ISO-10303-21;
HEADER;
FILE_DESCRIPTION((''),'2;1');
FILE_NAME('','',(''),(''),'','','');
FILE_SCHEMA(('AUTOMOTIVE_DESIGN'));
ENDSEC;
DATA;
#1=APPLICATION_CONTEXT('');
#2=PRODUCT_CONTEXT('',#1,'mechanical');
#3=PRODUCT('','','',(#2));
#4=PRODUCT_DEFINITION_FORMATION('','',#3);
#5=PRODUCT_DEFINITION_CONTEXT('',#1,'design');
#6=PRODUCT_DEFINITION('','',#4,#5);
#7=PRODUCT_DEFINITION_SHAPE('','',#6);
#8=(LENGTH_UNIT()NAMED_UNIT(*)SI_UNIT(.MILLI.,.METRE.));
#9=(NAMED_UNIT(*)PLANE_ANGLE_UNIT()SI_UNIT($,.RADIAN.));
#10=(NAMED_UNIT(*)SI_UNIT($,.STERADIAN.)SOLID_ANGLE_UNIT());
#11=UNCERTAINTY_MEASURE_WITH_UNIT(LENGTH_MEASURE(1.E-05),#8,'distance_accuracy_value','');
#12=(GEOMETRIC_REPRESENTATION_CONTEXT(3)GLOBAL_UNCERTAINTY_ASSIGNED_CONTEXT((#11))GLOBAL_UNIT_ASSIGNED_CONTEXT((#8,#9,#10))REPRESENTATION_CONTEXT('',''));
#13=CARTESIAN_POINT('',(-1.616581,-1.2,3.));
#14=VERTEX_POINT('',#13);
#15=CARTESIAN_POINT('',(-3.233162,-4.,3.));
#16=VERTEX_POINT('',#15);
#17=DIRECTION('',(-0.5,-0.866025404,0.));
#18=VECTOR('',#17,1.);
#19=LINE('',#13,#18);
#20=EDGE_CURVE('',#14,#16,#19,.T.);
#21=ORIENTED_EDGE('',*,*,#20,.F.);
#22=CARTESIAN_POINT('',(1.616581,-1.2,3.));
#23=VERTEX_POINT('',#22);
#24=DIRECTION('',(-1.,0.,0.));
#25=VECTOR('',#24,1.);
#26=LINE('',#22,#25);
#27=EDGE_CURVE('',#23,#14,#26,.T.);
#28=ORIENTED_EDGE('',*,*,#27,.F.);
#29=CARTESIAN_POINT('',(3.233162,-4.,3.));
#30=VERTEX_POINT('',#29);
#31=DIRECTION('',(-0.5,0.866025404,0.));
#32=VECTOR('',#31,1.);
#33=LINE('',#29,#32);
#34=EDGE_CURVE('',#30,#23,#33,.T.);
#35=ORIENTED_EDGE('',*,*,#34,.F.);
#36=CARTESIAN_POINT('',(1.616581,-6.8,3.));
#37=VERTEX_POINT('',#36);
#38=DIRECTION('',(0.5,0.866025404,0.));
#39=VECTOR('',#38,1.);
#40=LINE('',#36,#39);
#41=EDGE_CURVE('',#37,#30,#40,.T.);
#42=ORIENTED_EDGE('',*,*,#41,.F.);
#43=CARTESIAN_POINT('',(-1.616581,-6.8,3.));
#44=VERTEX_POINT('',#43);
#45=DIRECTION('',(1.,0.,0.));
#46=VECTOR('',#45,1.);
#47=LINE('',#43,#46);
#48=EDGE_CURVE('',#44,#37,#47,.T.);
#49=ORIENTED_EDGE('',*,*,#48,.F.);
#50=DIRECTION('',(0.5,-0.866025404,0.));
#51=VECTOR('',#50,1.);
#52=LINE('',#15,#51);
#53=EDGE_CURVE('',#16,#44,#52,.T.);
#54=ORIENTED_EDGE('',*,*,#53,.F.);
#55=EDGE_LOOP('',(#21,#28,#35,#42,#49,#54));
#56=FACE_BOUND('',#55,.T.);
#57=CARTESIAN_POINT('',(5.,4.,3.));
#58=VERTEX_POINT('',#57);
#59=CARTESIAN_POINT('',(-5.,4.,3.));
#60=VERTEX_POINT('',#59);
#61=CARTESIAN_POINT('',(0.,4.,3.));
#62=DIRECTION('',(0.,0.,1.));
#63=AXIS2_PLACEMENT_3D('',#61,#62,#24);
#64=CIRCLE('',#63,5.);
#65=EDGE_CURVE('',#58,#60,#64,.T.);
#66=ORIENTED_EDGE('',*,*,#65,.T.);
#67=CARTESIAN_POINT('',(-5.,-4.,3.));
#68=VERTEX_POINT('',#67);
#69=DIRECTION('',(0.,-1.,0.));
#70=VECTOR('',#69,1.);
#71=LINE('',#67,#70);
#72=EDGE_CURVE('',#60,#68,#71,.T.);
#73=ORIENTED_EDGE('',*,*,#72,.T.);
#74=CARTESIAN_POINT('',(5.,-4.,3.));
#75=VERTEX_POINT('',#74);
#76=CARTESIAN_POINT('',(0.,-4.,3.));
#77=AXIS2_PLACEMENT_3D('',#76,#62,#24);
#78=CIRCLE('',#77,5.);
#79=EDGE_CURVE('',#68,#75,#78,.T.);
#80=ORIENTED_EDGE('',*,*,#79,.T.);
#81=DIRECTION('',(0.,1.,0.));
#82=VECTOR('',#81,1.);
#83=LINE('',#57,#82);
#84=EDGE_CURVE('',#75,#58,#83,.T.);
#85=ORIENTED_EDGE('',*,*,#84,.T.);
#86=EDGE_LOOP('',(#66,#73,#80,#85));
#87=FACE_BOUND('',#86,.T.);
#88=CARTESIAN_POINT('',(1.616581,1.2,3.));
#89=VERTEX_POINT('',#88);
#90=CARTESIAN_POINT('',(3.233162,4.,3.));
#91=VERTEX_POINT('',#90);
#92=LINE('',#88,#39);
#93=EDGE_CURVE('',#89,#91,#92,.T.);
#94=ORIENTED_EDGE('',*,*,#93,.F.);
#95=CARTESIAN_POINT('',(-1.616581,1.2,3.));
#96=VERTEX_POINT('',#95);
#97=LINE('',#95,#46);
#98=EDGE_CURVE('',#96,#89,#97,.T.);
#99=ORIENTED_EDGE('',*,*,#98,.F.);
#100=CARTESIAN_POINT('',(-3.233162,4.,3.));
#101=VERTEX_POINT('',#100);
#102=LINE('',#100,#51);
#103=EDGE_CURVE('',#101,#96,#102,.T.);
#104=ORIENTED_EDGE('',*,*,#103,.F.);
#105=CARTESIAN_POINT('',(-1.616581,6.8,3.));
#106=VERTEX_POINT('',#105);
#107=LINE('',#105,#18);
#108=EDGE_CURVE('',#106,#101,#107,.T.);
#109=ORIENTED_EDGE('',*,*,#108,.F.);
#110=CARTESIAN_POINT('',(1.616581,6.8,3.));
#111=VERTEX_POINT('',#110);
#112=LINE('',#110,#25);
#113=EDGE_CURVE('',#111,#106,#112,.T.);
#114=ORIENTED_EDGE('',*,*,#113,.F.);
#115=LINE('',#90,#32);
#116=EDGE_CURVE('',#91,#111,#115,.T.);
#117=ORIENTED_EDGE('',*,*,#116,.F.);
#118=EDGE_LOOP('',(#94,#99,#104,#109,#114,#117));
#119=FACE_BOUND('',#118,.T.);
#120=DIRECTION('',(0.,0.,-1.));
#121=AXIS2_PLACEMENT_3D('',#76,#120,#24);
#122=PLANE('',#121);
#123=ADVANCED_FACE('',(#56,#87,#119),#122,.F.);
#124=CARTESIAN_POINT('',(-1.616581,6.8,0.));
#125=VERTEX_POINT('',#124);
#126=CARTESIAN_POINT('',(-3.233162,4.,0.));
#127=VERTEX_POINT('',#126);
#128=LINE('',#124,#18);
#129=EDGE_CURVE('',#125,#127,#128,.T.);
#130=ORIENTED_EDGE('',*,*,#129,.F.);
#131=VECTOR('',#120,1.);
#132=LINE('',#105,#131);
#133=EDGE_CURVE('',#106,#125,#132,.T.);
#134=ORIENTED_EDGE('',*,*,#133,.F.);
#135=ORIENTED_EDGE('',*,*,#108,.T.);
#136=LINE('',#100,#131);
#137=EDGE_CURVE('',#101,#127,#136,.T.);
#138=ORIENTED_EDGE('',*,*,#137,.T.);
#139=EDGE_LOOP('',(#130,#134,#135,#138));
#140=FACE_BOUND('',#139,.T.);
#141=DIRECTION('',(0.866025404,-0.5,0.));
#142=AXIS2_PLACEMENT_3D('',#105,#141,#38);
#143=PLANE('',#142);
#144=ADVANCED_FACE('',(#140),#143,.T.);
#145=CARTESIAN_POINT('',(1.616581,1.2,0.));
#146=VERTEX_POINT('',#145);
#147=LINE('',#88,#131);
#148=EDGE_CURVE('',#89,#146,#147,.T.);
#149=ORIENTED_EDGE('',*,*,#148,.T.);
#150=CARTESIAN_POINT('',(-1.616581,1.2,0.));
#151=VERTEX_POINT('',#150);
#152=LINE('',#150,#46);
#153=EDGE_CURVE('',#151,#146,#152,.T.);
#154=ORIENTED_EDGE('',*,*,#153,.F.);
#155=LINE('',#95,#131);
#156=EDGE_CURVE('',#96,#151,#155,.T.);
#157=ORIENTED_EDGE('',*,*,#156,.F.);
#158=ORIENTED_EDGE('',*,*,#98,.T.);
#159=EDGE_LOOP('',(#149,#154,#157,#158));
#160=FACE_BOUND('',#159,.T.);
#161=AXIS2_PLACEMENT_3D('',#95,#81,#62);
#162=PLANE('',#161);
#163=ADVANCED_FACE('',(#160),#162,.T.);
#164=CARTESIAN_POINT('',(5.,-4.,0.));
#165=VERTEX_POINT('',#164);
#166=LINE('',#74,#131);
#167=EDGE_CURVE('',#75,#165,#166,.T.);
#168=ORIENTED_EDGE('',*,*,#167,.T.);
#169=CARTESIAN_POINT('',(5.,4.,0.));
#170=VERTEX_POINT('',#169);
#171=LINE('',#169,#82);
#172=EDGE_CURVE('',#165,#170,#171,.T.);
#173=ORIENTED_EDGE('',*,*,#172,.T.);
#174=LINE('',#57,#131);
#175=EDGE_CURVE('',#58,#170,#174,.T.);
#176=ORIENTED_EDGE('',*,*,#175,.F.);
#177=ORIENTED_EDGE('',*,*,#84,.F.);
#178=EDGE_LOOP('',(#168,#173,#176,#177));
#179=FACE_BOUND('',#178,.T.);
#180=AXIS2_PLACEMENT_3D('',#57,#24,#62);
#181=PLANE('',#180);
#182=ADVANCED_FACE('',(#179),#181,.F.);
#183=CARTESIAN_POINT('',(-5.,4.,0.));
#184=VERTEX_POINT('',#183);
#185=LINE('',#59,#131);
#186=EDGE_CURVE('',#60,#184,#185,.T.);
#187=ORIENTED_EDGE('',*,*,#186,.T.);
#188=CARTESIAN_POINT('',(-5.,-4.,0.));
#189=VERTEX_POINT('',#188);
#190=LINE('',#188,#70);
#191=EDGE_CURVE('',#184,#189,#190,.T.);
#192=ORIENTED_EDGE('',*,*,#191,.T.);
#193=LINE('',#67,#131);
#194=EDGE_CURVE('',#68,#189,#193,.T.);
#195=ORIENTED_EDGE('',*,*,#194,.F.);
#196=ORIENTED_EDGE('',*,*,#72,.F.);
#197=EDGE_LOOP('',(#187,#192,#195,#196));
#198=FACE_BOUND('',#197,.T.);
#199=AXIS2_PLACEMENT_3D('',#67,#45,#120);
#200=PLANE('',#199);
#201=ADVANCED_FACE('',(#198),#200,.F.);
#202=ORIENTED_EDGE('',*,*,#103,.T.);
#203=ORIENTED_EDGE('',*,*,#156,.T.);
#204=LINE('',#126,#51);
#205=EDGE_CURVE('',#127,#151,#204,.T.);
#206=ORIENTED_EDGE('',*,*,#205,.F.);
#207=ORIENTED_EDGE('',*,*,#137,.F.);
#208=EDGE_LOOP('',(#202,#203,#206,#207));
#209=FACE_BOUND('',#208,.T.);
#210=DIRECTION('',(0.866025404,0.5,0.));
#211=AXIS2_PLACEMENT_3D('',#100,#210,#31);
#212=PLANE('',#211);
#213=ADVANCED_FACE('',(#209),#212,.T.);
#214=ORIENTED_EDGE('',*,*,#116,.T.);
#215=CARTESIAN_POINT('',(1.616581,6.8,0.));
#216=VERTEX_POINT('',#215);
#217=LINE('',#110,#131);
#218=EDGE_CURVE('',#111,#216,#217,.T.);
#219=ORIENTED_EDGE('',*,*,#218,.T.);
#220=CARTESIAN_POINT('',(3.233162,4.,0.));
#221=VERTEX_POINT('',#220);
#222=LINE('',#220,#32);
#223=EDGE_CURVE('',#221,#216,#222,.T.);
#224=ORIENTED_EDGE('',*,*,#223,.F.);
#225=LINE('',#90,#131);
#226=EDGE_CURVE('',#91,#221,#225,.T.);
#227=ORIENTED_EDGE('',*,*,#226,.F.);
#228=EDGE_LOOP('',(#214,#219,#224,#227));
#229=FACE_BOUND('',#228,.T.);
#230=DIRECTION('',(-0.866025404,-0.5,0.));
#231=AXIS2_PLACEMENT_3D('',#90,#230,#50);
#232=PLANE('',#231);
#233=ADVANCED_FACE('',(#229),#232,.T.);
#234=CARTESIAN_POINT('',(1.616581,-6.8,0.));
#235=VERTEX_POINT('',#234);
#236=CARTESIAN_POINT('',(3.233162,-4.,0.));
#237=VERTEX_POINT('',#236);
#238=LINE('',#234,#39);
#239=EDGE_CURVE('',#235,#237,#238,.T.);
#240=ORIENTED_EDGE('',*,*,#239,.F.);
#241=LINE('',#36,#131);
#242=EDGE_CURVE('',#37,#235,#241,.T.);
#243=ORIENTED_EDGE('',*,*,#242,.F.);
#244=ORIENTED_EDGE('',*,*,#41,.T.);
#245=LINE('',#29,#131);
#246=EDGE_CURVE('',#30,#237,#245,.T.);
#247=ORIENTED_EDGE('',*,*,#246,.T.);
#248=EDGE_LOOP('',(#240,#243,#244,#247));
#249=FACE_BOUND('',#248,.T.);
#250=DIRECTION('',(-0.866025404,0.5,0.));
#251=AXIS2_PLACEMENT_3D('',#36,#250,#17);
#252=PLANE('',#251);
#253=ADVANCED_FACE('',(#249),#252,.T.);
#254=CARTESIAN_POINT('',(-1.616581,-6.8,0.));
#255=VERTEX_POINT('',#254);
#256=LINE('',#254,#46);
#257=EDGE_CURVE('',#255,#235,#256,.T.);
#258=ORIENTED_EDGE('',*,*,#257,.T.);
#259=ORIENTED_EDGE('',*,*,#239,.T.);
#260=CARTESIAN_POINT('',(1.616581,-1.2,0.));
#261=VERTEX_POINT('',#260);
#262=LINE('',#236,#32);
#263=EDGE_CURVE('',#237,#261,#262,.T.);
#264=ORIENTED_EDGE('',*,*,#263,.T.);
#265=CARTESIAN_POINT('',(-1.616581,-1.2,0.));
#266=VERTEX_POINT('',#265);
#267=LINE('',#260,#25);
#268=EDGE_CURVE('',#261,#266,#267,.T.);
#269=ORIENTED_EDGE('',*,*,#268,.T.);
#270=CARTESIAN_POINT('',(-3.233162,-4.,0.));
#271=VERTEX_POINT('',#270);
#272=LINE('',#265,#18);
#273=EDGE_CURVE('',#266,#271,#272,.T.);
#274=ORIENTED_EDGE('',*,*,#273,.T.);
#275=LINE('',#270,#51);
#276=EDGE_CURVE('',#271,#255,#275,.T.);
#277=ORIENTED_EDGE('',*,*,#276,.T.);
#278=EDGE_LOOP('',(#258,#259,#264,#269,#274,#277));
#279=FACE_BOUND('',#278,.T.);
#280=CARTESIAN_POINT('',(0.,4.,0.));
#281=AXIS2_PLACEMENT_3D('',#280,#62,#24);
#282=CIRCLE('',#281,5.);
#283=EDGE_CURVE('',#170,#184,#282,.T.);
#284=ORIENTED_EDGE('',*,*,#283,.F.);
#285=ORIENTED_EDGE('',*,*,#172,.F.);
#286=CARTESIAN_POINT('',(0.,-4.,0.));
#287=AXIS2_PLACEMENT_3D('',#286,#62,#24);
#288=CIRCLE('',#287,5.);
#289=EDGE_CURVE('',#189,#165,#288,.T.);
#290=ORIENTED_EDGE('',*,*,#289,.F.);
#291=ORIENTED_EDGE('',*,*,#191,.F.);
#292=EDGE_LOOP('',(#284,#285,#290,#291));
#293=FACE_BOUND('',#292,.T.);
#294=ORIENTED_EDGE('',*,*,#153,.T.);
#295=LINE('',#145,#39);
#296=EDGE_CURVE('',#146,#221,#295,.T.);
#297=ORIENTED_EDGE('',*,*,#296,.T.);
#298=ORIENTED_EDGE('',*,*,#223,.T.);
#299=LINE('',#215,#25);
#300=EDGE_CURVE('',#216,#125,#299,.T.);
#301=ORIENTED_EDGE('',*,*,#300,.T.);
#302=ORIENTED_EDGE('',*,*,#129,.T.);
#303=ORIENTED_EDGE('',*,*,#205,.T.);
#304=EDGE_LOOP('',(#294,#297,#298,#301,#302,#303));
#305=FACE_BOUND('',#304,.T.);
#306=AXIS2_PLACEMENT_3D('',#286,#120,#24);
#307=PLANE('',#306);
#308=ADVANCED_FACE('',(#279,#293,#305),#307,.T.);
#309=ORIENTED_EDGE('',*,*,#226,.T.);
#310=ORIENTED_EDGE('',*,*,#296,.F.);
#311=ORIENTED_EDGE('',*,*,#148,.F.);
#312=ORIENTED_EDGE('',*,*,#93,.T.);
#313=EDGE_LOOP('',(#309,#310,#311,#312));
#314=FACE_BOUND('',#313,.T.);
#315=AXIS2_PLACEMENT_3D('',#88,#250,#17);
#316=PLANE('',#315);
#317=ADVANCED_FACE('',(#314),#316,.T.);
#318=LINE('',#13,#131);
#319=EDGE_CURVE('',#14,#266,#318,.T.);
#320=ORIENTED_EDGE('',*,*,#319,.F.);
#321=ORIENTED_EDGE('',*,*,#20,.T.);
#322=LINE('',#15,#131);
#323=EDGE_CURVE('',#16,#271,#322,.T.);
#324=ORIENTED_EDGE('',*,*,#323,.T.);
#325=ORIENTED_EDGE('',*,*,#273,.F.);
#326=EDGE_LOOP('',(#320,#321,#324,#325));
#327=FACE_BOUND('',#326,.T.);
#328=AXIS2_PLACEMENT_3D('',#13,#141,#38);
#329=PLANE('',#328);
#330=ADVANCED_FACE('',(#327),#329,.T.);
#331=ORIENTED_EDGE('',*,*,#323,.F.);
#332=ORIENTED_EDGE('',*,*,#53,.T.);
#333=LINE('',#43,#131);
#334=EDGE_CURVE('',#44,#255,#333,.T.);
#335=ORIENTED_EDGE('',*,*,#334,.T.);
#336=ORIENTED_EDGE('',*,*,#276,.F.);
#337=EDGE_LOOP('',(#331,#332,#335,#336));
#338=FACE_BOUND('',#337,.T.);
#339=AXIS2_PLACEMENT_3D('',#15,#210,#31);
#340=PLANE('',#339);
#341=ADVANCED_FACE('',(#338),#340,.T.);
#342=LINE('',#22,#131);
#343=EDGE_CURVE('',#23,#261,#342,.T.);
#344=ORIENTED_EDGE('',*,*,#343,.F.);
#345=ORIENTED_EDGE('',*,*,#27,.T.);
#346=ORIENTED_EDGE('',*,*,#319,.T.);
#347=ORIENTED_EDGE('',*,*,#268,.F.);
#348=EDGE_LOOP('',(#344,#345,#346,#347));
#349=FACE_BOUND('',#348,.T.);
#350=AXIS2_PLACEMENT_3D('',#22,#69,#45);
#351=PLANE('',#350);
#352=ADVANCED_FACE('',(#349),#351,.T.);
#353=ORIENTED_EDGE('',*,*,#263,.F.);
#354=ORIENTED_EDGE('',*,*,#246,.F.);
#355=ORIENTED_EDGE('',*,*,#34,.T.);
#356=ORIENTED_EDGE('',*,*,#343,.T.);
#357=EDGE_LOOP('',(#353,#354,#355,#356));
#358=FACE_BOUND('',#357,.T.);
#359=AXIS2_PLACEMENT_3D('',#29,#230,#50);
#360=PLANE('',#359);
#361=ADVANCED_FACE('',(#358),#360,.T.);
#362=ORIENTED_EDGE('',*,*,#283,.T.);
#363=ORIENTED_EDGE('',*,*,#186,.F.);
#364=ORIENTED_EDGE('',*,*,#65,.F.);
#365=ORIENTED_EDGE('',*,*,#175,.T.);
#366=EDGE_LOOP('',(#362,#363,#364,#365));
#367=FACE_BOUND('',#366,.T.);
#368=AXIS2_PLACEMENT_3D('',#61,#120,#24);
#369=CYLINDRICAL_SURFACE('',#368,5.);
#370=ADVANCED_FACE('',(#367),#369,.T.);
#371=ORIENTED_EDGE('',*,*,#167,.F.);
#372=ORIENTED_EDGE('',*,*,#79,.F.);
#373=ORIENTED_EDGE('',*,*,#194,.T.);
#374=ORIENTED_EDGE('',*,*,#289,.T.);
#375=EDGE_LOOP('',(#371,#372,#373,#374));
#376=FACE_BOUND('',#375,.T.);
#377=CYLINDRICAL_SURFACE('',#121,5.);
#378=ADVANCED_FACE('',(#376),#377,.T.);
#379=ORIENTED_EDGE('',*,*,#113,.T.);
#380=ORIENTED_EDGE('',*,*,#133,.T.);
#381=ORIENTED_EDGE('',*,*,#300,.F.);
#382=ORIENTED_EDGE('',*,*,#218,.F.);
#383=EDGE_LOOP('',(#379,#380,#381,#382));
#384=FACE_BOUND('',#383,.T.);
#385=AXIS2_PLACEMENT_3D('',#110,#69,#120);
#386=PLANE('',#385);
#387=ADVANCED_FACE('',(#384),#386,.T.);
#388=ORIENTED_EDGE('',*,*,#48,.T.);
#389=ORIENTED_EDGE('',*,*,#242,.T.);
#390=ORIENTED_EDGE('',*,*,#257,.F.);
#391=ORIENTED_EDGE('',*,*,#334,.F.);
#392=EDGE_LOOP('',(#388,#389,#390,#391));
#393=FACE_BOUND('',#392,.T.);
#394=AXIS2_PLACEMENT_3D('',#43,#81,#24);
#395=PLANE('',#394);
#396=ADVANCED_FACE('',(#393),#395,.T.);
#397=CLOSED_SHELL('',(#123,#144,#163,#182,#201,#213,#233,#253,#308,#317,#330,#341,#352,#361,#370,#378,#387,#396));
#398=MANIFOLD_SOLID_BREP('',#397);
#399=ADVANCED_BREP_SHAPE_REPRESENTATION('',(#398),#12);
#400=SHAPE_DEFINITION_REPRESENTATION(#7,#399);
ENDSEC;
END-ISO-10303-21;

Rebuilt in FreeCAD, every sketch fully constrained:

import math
import FreeCAD as App
import Part
import Sketcher

V = App.Vector
Q = App.Units.Quantity

doc = App.newDocument("Part")
body = doc.addObject("PartDesign::Body", "Body")

# Sketch on XY plane
sketch1 = doc.addObject("Sketcher::SketchObject", "Sketch")
body.addObject(sketch1)
sketch1.AttachmentSupport = (doc.XY_Plane, [""])
sketch1.MapMode = "FlatFace"
sketch1.addGeometry([
    Part.LineSegment(V(-5, 4, 0), V(-5, -4, 0)),  # 0
    Part.ArcOfCircle(Part.Circle(V(0, -4, 0), V(0, 0, 1), 5), math.radians(180), math.radians(360)),  # 1
    Part.LineSegment(V(5, -4, 0), V(5, 4, 0)),  # 2
    Part.ArcOfCircle(Part.Circle(V(0, 4, 0), V(0, 0, 1), 5), math.radians(0), math.radians(180)),  # 3
    Part.LineSegment(V(3.2, -4, 0), V(1.6, -6.8, 0)),  # 4
    Part.LineSegment(V(1.6, -6.8, 0), V(-1.6, -6.8, 0)),  # 5
    Part.LineSegment(V(-1.6, -6.8, 0), V(-3.2, -4, 0)),  # 6
    Part.LineSegment(V(-3.2, -4, 0), V(-1.6, -1.2, 0)),  # 7
    Part.LineSegment(V(-1.6, -1.2, 0), V(1.6, -1.2, 0)),  # 8
    Part.LineSegment(V(1.6, -1.2, 0), V(3.2, -4, 0)),  # 9
    Part.LineSegment(V(1.6, 1.2, 0), V(-1.6, 1.2, 0)),  # 10
    Part.LineSegment(V(-1.6, 1.2, 0), V(-3.2, 4, 0)),  # 11
    Part.LineSegment(V(-3.2, 4, 0), V(-1.6, 6.8, 0)),  # 12
    Part.LineSegment(V(-1.6, 6.8, 0), V(1.6, 6.8, 0)),  # 13
    Part.LineSegment(V(1.6, 6.8, 0), V(3.2, 4, 0)),  # 14
    Part.LineSegment(V(3.2, 4, 0), V(1.6, 1.2, 0)),  # 15
], False)
sketch1.addConstraint([
    Sketcher.Constraint("Tangent", 0, 2, 1, 1),
    Sketcher.Constraint("Tangent", 1, 2, 2, 1),
    Sketcher.Constraint("Tangent", 2, 2, 3, 1),
    Sketcher.Constraint("Tangent", 3, 2, 0, 1),
    Sketcher.Constraint("Coincident", 4, 2, 5, 1),
    Sketcher.Constraint("Coincident", 5, 2, 6, 1),
    Sketcher.Constraint("Coincident", 6, 2, 7, 1),
    Sketcher.Constraint("Coincident", 7, 2, 8, 1),
    Sketcher.Constraint("Coincident", 8, 2, 9, 1),
    Sketcher.Constraint("Coincident", 9, 2, 4, 1),
    Sketcher.Constraint("Coincident", 10, 2, 11, 1),
    Sketcher.Constraint("Coincident", 11, 2, 12, 1),
    Sketcher.Constraint("Coincident", 12, 2, 13, 1),
    Sketcher.Constraint("Coincident", 13, 2, 14, 1),
    Sketcher.Constraint("Coincident", 14, 2, 15, 1),
    Sketcher.Constraint("Coincident", 15, 2, 10, 1),
    Sketcher.Constraint("Vertical", 0),
    Sketcher.Constraint("Vertical", 2),
    Sketcher.Constraint("Horizontal", 5),
    Sketcher.Constraint("Horizontal", 8),
    Sketcher.Constraint("Horizontal", 10),
    Sketcher.Constraint("Horizontal", 13),
    Sketcher.Constraint("Symmetric", 1, 3, 3, 3, -1, 1),
    Sketcher.Constraint("Symmetric", 8, 2, 10, 2, -1, 1),
    Sketcher.Constraint("Symmetric", 9, 2, 11, 2, -1, 1),
    Sketcher.Constraint("Symmetric", 4, 2, 12, 2, -1, 1),
    Sketcher.Constraint("Symmetric", 6, 2, 14, 2, -1, 1),
    Sketcher.Constraint("Symmetric", 6, 2, 9, 2, -2),
    Sketcher.Constraint("Parallel", 4, 7),
    Sketcher.Constraint("Parallel", 6, 9),
    Sketcher.Constraint("Parallel", 11, 14),
    Sketcher.Constraint("Parallel", 12, 15),
    Sketcher.Constraint("Horizontal", 1, 2, 6, 2),
    Sketcher.Constraint("Vertical", 5, 2, 7, 2),
    Sketcher.Constraint("Vertical", 4, 2, 8, 2),
    Sketcher.Constraint("Radius", 1, Q("5 mm")),
    Sketcher.Constraint("DistanceY", 0, 2, 0, 1, Q("8 mm")),
    Sketcher.Constraint("Angle", 4, Q("-120 deg")),
    Sketcher.Constraint("DistanceY", 4, 2, -1, 1, Q("6.8 mm")),
    Sketcher.Constraint("DistanceX", 5, 2, 5, 1, Q("3.233162 mm")),
])
pad1 = doc.addObject("PartDesign::Pad", "Pad")
body.addObject(pad1)
pad1.Profile = sketch1
pad1.Length = 3

doc.recompute()
